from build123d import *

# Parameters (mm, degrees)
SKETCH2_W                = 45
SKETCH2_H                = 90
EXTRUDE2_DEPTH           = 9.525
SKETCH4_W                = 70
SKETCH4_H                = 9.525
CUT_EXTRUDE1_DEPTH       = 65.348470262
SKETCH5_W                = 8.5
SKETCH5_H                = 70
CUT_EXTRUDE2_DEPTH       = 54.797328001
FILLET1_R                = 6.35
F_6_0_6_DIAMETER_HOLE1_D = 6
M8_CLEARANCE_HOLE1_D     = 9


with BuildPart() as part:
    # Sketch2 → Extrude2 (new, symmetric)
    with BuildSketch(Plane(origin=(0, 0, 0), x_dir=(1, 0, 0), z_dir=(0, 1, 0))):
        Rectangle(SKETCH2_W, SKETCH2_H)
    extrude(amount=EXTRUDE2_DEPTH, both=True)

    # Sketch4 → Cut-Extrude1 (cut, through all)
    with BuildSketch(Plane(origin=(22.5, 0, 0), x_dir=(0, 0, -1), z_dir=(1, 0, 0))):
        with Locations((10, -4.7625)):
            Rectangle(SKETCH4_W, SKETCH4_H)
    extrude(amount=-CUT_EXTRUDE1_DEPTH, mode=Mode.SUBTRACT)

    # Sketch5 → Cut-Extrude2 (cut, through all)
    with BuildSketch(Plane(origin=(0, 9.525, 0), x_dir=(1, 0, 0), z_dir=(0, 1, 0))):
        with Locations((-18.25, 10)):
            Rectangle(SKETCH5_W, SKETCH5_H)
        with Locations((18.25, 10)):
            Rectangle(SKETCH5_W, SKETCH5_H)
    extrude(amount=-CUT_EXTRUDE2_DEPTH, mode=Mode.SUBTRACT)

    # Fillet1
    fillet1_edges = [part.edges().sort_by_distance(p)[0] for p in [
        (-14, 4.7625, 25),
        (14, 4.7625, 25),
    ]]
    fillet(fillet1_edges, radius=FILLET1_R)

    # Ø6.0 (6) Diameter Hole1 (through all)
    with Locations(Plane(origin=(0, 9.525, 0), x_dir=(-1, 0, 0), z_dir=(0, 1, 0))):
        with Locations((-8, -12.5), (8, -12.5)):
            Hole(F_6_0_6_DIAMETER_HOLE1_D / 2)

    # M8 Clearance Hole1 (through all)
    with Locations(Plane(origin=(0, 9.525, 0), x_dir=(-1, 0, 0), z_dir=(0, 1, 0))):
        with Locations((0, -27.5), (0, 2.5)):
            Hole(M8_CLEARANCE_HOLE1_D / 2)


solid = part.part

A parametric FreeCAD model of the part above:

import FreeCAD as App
import Part
import Sketcher
from FreeCAD import Vector


def edges_at(feature, points):
    """Names of the edges that pass closest to the given points."""
    edges = feature.Shape.Edges
    near = lambda p: min(range(len(edges)), key=lambda i: edges[i].distToShape(Part.Vertex(*p))[0])
    return sorted({f"Edge{near(p) + 1}" for p in points})


def add_polygon(sketch, points):
    """Adds a closed chain of lines whose ends are joined by coincident constraints."""
    first, n = sketch.GeometryCount, len(points)
    for a, b in zip(points, points[1:] + points[:1]):
        sketch.addGeometry(Part.LineSegment(App.Vector(*a, 0), App.Vector(*b, 0)), False)
    for i in range(n):
        sketch.addConstraint(Sketcher.Constraint("Coincident", first + i, 2, first + (i + 1) % n, 1))

doc = App.newDocument("Part")
body = doc.addObject("PartDesign::Body", "Body")

sketch1 = doc.addObject("Sketcher::SketchObject", "Sketch")
body.addObject(sketch1)
sketch1.AttachmentSupport = (doc.XZ_Plane, [""])
sketch1.MapMode = "FlatFace"
add_polygon(sketch1, [(-22, -45), (-22, 45), (22, 45), (22, -45)])
sketch1.addConstraint([
    Sketcher.Constraint("Vertical", 0),
    Sketcher.Constraint("Horizontal", 1),
    Sketcher.Constraint("Vertical", 2),
    Sketcher.Constraint("Horizontal", 3),
    Sketcher.Constraint("Symmetric", 0, 2, 2, 2, -1, 1),
    Sketcher.Constraint("DistanceX", 1, 1, 1, 2, 45.0),
    Sketcher.Constraint("DistanceY", 0, 1, 0, 2, 90.0),
])
pad1 = doc.addObject("PartDesign::Pad", "Pad")
body.addObject(pad1)
pad1.Profile = sketch1
pad1.Length = 19.05
pad1.Midplane = True

sketch2 = doc.addObject("Sketcher::SketchObject", "Sketch001")
body.addObject(sketch2)
sketch2.AttachmentSupport = (doc.YZ_Plane, [""])
sketch2.MapMode = "FlatFace"
sketch2.AttachmentOffset = App.Placement(Vector(0, 0, 22.5), App.Rotation())
add_polygon(sketch2, [(0, 25), (-10, 25), (-10, -45), (0, -45)])
sketch2.addConstraint([
    Sketcher.Constraint("Horizontal", 0),
    Sketcher.Constraint("Vertical", 1),
    Sketcher.Constraint("Horizontal", 2),
    Sketcher.Constraint("Vertical", 3),
    Sketcher.Constraint("PointOnObject", 2, 2, -2),
    Sketcher.Constraint("DistanceY", 1, 2, 1, 1, 70.0),
    Sketcher.Constraint("DistanceY", -1, 1, 0, 2, 25.0),
    Sketcher.Constraint("DistanceX", 0, 2, 0, 1, 9.525),
])
pocket1 = doc.addObject("PartDesign::Pocket", "Pocket")
body.addObject(pocket1)
pocket1.Profile = sketch2
pocket1.Type = "ThroughAll"

sketch3 = doc.addObject("Sketcher::SketchObject", "Sketch002")
body.addObject(sketch3)
sketch3.AttachmentSupport = (doc.XZ_Plane, [""])
sketch3.MapMode = "FlatFace"
sketch3.AttachmentOffset = App.Placement(Vector(0, 0, -9.525), App.Rotation())
add_polygon(sketch3, [(-22, -45), (-22, 25), (-14, 25), (-14, -45)])
add_polygon(sketch3, [(14, -45), (14, 25), (22, 25), (22, -45)])
sketch3.addConstraint([
    Sketcher.Constraint("Vertical", 0),
    Sketcher.Constraint("Horizontal", 1),
    Sketcher.Constraint("Vertical", 2),
    Sketcher.Constraint("Horizontal", 3),
    Sketcher.Constraint("Vertical", 4),
    Sketcher.Constraint("Horizontal", 5),
    Sketcher.Constraint("Vertical", 6),
    Sketcher.Constraint("Horizontal", 7),
    Sketcher.Constraint("Symmetric", 1, 2, 4, 2, -2),
    Sketcher.Constraint("Symmetric", 3, 2, 6, 2, -2),
    Sketcher.Constraint("DistanceY", 0, 1, 0, 2, 70.0),
    Sketcher.Constraint("DistanceX", 1, 1, 1, 2, 8.5),
    Sketcher.Constraint("DistanceY", -1, 1, 0, 2, 25.0),
    Sketcher.Constraint("DistanceX", 1, 2, -1, 1, 14.0),
])
pocket2 = doc.addObject("PartDesign::Pocket", "Pocket001")
body.addObject(pocket2)
pocket2.Profile = sketch3
pocket2.Type = "ThroughAll"
pocket2.Reversed = True
doc.recompute()

fillet = doc.addObject("PartDesign::Fillet", "Fillet")
body.addObject(fillet)
fillet.Base = (pocket2, edges_at(pocket2, [(-14, 4.763, 25), (14, 4.763, 25)]))
fillet.Radius = 6.35

sketch4 = doc.addObject("Sketcher::SketchObject", "Sketch003")
body.addObject(sketch4)
sketch4.AttachmentSupport = (doc.XZ_Plane, [""])
sketch4.MapMode = "FlatFace"
sketch4.AttachmentOffset = App.Placement(Vector(0, 0, -9.525), App.Rotation())
sketch4.addGeometry([
    Part.Circle(Vector(8, -12.5, 0), Vector(0, 0, 1), 3),
    Part.Circle(Vector(-8, -12.5, 0), Vector(0, 0, 1), 3),
], False)
sketch4.addConstraint([
    Sketcher.Constraint("Equal", 0, 1),
    Sketcher.Constraint("Symmetric", 0, 3, 1, 3, -2),
    Sketcher.Constraint("Diameter", 0, 6.0),
    Sketcher.Constraint("DistanceX", -1, 1, 0, 3, 8.0),
    Sketcher.Constraint("DistanceY", 0, 3, -1, 1, 12.5),
])
doc.recompute()
hole = doc.addObject("PartDesign::Hole", "Hole")
body.addObject(hole)
hole.Profile = sketch4
hole.ThreadType = "None"
hole.Diameter = 6
hole.DepthType = "ThroughAll"
hole.Reversed = True

sketch5 = doc.addObject("Sketcher::SketchObject", "Sketch004")
body.addObject(sketch5)
sketch5.AttachmentSupport = (doc.XZ_Plane, [""])
sketch5.MapMode = "FlatFace"
sketch5.AttachmentOffset = App.Placement(Vector(0, 0, -9.525), App.Rotation())
sketch5.addGeometry([
    Part.Circle(Vector(0, -27.5, 0), Vector(0, 0, 1), 4.5),
    Part.Circle(Vector(0, 2.5, 0), Vector(0, 0, 1), 4.5),
], False)
sketch5.addConstraint([
    Sketcher.Constraint("Equal", 0, 1),
    Sketcher.Constraint("PointOnObject", 0, 3, -2),
    Sketcher.Constraint("PointOnObject", 1, 3, -2),
    Sketcher.Constraint("Diameter", 0, 9.0),
    Sketcher.Constraint("DistanceY", 0, 3, 1, 3, 30.0),
    Sketcher.Constraint("DistanceY", 0, 3, -1, 1, 27.5),
])
doc.recompute()
hole2 = doc.addObject("PartDesign::Hole", "Hole001")
body.addObject(hole2)
hole2.Profile = sketch5
hole2.ThreadType = "None"
hole2.Diameter = 9
hole2.DepthType = "ThroughAll"
hole2.Reversed = True

doc.recompute()
